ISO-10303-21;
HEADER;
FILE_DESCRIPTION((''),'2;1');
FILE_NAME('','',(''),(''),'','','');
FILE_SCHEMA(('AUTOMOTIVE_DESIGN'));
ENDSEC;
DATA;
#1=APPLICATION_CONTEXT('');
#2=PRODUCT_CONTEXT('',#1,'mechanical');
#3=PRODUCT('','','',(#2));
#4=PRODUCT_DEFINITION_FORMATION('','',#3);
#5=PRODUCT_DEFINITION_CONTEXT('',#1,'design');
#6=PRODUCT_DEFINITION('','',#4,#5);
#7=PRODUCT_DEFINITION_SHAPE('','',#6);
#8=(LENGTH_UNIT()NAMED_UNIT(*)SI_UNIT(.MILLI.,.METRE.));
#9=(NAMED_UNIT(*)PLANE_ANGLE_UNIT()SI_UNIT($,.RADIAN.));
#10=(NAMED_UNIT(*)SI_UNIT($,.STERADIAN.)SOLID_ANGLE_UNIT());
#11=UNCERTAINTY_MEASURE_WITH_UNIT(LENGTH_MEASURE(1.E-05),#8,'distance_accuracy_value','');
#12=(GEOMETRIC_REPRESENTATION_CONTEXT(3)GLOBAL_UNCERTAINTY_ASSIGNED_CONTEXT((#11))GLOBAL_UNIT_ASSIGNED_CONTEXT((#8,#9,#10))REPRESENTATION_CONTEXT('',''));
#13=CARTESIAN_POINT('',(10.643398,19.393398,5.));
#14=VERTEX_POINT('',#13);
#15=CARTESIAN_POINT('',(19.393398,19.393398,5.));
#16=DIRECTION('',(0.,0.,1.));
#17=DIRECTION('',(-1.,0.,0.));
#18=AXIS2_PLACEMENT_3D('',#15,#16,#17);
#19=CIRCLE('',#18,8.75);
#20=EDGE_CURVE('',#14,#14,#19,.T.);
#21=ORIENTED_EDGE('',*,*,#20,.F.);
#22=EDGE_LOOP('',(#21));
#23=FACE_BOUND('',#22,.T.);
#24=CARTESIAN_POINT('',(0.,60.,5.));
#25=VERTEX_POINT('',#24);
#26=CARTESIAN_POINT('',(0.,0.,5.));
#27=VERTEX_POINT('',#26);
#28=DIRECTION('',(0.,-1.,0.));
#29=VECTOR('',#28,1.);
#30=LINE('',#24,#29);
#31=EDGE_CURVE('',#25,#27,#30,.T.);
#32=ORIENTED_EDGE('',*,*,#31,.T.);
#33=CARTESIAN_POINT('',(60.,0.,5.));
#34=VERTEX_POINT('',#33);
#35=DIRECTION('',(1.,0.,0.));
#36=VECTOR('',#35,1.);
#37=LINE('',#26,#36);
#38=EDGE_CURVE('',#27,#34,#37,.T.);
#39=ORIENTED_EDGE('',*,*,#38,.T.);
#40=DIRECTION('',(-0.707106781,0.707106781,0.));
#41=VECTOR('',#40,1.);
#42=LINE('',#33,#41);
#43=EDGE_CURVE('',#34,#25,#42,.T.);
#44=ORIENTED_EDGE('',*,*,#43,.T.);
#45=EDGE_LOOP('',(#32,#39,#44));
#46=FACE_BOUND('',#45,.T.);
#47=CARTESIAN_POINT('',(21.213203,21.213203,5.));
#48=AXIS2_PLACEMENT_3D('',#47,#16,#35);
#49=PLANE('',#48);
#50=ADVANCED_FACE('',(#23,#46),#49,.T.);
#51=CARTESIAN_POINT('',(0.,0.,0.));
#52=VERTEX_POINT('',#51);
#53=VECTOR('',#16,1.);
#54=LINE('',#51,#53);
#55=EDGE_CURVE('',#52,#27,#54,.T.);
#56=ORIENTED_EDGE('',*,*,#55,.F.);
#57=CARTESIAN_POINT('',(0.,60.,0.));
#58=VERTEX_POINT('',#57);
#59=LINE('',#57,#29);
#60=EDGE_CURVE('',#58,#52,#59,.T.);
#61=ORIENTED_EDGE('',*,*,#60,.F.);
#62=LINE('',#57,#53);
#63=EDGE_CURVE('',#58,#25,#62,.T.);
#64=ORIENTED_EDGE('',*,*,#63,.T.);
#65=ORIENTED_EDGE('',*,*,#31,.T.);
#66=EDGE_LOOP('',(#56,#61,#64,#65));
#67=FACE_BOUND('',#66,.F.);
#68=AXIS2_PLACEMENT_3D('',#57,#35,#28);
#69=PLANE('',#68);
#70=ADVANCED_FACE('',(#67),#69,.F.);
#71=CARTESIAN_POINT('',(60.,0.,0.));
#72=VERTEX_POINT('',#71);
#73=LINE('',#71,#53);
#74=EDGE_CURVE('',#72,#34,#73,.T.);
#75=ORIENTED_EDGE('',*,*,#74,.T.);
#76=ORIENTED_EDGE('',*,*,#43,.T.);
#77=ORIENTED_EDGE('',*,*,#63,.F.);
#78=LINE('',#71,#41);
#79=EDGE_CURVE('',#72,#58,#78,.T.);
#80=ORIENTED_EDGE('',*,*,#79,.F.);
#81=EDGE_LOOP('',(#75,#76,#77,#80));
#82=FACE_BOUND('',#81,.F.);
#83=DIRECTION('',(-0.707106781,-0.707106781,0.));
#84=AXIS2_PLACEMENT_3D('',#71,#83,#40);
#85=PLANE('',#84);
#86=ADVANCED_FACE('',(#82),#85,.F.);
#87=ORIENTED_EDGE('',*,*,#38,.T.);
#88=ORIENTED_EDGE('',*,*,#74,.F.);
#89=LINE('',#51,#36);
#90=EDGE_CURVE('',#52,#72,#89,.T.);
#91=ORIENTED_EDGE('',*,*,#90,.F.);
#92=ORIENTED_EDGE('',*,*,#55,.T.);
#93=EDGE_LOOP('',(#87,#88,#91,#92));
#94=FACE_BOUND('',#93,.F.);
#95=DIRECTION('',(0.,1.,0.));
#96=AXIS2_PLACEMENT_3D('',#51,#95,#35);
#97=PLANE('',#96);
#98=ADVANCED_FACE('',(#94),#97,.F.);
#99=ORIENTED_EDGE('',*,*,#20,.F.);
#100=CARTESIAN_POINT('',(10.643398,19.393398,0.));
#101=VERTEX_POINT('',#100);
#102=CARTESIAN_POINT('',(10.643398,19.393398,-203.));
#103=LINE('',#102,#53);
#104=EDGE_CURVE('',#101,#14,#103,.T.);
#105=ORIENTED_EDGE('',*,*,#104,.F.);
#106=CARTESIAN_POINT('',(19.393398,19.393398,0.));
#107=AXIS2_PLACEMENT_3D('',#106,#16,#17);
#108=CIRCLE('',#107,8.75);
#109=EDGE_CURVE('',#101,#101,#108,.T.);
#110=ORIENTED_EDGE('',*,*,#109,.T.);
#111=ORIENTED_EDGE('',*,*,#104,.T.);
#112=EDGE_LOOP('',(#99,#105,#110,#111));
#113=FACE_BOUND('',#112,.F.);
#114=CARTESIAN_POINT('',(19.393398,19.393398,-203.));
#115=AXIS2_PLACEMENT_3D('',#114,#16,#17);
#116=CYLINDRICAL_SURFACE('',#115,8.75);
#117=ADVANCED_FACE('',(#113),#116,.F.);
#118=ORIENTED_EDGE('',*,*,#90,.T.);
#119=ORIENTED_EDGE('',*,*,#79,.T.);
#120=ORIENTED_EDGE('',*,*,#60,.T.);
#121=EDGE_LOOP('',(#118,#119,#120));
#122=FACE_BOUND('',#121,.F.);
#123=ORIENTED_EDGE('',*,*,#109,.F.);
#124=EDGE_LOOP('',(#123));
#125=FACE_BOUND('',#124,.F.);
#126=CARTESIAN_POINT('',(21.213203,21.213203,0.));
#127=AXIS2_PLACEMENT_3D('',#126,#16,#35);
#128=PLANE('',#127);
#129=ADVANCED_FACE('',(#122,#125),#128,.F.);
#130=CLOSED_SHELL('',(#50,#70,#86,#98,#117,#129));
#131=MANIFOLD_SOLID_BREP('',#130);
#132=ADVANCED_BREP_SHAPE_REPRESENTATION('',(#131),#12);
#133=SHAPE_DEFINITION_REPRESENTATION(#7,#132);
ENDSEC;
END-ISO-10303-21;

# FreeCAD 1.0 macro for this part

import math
import FreeCAD as App
import Part
import Sketcher

doc = App.newDocument("Part")
body = doc.addObject("PartDesign::Body", "Body")

# Sketch on XY plane
sketch1 = body.newObject("Sketcher::SketchObject", "Sketch")
sketch1.AttachmentSupport = (doc.getObject("XY_Plane"), [""])
sketch1.MapMode = "FlatFace"
sketch1.addGeometry(Part.LineSegment(App.Vector(0, 60, 0), App.Vector(0, 0, 0)), False)
sketch1.addGeometry(Part.LineSegment(App.Vector(0, 0, 0), App.Vector(60, 0, 0)), False)
sketch1.addGeometry(Part.LineSegment(App.Vector(60, 0, 0), App.Vector(0, 60, 0)), False)
sketch1.addGeometry(Part.ArcOfCircle(Part.Circle(App.Vector(19.393398, 19.393398, 0), App.Vector(0, 0, 1), 3.5), math.radians(0), math.radians(45)), False)
sketch1.addGeometry(Part.ArcOfCircle(Part.Circle(App.Vector(19.393398, 19.393398, 0), App.Vector(0, 0, 1), 3.5), math.radians(45), math.radians(360)), False)
sketch1.addConstraint(Sketcher.Constraint("Coincident", 0, 2, 1, 1))
sketch1.addConstraint(Sketcher.Constraint("Coincident", 1, 2, 2, 1))
sketch1.addConstraint(Sketcher.Constraint("Coincident", 2, 2, 0, 1))
sketch1.addConstraint(Sketcher.Constraint("Tangent", 3, 1, 4, 2))
sketch1.addConstraint(Sketcher.Constraint("Coincident", 4, 1, 3, 2))
sketch1.addConstraint(Sketcher.Constraint("Vertical", 0))
sketch1.addConstraint(Sketcher.Constraint("Horizontal", 1))
sketch1.addConstraint(Sketcher.Constraint("Coincident", 0, 2, -1, 1))
sketch1.addConstraint(Sketcher.Constraint("Horizontal", 4, 3, 3, 1))
sketch1.addConstraint(Sketcher.Constraint("Equal", 1, 0))
sketch1.addConstraint(Sketcher.Constraint("Radius", 3, 3.5))
sketch1.addConstraint(Sketcher.Constraint("DistanceX", 1, 1, 1, 2, 60.0))
sketch1.addConstraint(Sketcher.Constraint("DistanceX", -1, 1, 3, 3, 19.393398))
sketch1.addConstraint(Sketcher.Constraint("DistanceY", -1, 1, 3, 3, 19.393398))
sketch1.addConstraint(Sketcher.Constraint("DistanceX", -1, 1, 4, 1, 21.868272))
pad1 = body.newObject("PartDesign::Pad", "Pad")
pad1.Profile = sketch1
pad1.Length = 5

# Sketch on XY plane
sketch2 = body.newObject("Sketcher::SketchObject", "Sketch001")
sketch2.AttachmentSupport = (doc.getObject("XY_Plane"), [""])
sketch2.MapMode = "FlatFace"
sketch2.addGeometry(Part.Circle(App.Vector(19.393398, 19.393398, 0), App.Vector(0, 0, 1), 8.75), False)
sketch2.addConstraint(Sketcher.Constraint("Diameter", 0, 17.5))
sketch2.addConstraint(Sketcher.Constraint("DistanceX", -1, 1, 0, 3, 19.393398))
sketch2.addConstraint(Sketcher.Constraint("DistanceY", -1, 1, 0, 3, 19.393398))
doc.recompute()
hole = body.newObject("PartDesign::Hole", "Hole")
hole.Profile = sketch2
hole.ThreadType = "None"
hole.Diameter = 17.5
hole.DepthType = "Dimension"
hole.Depth = 203
hole.DrillPoint = "Angled"
hole.DrillPointAngle = 118
hole.Reversed = True

doc.recompute()
